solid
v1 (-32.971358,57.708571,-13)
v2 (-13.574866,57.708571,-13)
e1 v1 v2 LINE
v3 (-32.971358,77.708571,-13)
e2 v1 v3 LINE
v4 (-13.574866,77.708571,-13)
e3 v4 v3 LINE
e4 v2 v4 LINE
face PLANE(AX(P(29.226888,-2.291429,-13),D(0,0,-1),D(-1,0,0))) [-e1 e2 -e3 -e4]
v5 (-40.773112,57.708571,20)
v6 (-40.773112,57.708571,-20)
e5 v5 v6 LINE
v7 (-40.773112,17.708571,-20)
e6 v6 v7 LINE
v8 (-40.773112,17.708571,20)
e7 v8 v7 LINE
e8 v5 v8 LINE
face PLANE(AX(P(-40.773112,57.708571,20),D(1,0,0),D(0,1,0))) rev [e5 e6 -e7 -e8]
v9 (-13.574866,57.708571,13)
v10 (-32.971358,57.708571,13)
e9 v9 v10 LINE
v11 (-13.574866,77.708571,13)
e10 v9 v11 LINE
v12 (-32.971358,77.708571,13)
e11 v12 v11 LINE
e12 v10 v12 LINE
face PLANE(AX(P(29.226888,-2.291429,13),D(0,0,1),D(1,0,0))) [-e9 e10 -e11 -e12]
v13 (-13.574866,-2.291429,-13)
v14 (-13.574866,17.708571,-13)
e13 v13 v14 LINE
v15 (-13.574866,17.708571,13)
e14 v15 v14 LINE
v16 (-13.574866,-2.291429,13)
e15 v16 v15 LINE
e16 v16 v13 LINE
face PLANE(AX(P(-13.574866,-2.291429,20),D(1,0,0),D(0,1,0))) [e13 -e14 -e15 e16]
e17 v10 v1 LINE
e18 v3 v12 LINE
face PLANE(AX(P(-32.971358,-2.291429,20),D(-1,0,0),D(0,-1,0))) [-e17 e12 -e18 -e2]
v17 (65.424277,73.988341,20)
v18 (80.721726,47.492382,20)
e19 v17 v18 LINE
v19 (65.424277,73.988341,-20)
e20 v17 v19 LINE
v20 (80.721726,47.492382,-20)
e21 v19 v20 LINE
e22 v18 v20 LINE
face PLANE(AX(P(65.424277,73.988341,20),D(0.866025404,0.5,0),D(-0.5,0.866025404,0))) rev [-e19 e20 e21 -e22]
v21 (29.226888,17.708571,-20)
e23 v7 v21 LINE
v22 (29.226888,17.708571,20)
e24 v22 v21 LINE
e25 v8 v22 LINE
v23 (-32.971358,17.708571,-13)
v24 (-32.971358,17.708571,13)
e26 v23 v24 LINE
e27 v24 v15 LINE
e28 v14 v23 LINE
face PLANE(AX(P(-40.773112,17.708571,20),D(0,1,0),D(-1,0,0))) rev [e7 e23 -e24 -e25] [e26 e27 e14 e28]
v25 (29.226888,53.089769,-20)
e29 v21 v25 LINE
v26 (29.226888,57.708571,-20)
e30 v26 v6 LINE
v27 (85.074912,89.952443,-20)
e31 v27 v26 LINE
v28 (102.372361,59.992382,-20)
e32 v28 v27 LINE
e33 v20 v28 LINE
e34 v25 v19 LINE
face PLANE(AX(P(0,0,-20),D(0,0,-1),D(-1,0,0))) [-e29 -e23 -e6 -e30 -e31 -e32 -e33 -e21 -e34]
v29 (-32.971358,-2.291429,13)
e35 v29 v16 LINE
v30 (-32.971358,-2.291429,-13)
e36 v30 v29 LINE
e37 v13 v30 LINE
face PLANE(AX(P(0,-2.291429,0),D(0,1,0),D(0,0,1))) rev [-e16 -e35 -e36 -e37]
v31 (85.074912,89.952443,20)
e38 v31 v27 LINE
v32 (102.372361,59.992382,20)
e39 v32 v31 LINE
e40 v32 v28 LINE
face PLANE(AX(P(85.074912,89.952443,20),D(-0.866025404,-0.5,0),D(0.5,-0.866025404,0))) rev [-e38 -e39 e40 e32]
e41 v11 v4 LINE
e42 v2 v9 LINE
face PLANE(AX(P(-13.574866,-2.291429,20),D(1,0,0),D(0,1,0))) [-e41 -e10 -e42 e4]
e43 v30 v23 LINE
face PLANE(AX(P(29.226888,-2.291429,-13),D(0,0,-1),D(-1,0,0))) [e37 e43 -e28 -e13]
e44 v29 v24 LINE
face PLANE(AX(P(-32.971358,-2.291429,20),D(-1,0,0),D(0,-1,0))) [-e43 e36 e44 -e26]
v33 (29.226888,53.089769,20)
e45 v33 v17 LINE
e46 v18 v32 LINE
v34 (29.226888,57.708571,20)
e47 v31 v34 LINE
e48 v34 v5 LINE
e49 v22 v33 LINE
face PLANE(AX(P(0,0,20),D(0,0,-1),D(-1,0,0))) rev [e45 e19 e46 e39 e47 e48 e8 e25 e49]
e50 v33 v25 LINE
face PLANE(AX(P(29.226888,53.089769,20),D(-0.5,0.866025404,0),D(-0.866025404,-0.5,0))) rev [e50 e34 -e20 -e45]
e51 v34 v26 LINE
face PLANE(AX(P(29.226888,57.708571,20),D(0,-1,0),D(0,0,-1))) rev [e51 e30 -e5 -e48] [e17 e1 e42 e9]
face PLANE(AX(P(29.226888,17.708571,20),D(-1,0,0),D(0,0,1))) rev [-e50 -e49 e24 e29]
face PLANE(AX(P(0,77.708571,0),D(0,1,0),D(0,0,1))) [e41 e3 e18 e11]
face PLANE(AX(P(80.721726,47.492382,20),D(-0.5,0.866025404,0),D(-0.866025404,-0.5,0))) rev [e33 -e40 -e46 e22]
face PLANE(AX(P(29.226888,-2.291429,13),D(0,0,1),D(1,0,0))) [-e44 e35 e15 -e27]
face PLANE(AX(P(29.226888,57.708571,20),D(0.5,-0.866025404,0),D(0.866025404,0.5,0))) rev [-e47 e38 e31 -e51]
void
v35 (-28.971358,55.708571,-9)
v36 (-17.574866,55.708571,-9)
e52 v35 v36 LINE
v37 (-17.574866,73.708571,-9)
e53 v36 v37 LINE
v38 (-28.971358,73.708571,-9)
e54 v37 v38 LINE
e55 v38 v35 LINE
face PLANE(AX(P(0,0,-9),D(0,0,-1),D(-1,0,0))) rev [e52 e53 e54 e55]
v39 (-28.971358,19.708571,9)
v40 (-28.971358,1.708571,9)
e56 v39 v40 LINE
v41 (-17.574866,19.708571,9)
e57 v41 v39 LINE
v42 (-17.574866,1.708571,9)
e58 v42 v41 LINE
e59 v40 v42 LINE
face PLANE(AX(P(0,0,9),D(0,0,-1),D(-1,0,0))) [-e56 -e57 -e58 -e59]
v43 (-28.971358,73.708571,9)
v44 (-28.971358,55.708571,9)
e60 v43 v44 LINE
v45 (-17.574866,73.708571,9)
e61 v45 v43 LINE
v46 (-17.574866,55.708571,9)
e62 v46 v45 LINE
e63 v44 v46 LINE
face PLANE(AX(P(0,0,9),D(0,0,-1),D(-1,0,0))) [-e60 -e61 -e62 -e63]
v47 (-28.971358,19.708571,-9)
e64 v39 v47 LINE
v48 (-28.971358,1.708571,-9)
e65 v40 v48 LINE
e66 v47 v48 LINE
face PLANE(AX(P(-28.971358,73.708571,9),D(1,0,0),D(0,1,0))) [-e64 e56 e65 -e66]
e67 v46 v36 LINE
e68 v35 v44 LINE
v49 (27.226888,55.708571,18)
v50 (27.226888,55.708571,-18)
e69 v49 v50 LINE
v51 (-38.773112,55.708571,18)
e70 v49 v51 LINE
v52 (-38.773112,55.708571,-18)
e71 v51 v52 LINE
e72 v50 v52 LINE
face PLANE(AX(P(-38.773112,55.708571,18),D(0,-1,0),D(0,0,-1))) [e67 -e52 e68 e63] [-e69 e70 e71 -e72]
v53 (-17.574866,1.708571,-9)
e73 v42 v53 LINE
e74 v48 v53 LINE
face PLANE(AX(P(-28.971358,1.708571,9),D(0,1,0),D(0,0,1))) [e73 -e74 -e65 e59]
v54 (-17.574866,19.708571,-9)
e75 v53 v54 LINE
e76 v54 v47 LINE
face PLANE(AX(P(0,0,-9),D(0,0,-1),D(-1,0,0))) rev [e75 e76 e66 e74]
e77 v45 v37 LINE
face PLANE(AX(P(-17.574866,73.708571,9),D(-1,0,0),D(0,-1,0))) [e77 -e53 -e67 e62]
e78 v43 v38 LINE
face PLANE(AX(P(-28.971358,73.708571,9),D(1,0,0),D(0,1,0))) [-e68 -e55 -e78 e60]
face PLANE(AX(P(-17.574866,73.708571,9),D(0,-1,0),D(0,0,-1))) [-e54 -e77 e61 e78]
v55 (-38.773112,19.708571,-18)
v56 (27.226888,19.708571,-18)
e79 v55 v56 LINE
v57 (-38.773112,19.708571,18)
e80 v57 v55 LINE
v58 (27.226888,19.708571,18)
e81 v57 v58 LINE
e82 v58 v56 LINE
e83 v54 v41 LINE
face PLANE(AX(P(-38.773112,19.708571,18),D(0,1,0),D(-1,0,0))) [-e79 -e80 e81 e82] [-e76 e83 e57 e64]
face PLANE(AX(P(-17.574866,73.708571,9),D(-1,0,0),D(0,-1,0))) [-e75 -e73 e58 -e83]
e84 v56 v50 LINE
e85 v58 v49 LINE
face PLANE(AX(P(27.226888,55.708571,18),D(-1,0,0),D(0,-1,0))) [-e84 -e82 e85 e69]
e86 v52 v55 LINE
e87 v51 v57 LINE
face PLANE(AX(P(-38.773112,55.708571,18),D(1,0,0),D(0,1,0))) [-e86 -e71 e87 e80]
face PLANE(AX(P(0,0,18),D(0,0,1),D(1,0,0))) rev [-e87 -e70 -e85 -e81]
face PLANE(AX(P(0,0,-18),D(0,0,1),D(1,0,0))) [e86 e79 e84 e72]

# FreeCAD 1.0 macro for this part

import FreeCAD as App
import Part
import Sketcher
Q = App.Units.Quantity

doc = App.newDocument("Part")
body = doc.addObject("PartDesign::Body", "Body")

sketch1 = body.newObject("Sketcher::SketchObject", "Sketch")
sketch1.AttachmentSupport = (doc.getObject("XY_Plane"), [""])
sketch1.MapMode = "FlatFace"
sketch1.addGeometry(Part.LineSegment(App.Vector(65, 74, 0), App.Vector(81, 47, 0)), False)
sketch1.addGeometry(Part.LineSegment(App.Vector(81, 47, 0), App.Vector(102, 60, 0)), False)
sketch1.addGeometry(Part.LineSegment(App.Vector(102, 60, 0), App.Vector(85, 90, 0)), False)
sketch1.addGeometry(Part.LineSegment(App.Vector(85, 90, 0), App.Vector(29, 58, 0)), False)
sketch1.addGeometry(Part.LineSegment(App.Vector(29, 58, 0), App.Vector(-41, 58, 0)), False)
sketch1.addGeometry(Part.LineSegment(App.Vector(-41, 58, 0), App.Vector(-41, 18, 0)), False)
sketch1.addGeometry(Part.LineSegment(App.Vector(-41, 18, 0), App.Vector(29, 18, 0)), False)
sketch1.addGeometry(Part.LineSegment(App.Vector(29, 18, 0), App.Vector(29, 53, 0)), False)
sketch1.addGeometry(Part.LineSegment(App.Vector(29, 53, 0), App.Vector(65, 74, 0)), False)
sketch1.addConstraint(Sketcher.Constraint("Coincident", 0, 2, 1, 1))
sketch1.addConstraint(Sketcher.Constraint("Coincident", 1, 2, 2, 1))
sketch1.addConstraint(Sketcher.Constraint("Coincident", 2, 2, 3, 1))
sketch1.addConstraint(Sketcher.Constraint("Coincident", 3, 2, 4, 1))
sketch1.addConstraint(Sketcher.Constraint("Coincident", 4, 2, 5, 1))
sketch1.addConstraint(Sketcher.Constraint("Coincident", 5, 2, 6, 1))
sketch1.addConstraint(Sketcher.Constraint("Coincident", 6, 2, 7, 1))
sketch1.addConstraint(Sketcher.Constraint("Coincident", 7, 2, 8, 1))
sketch1.addConstraint(Sketcher.Constraint("Coincident", 8, 2, 0, 1))
sketch1.addConstraint(Sketcher.Constraint("Horizontal", 4))
sketch1.addConstraint(Sketcher.Constraint("Vertical", 5))
sketch1.addConstraint(Sketcher.Constraint("Horizontal", 6))
sketch1.addConstraint(Sketcher.Constraint("Vertical", 7))
sketch1.addConstraint(Sketcher.Constraint("Perpendicular", 0, 1))
sketch1.addConstraint(Sketcher.Constraint("Perpendicular", 1, 2))
sketch1.addConstraint(Sketcher.Constraint("Perpendicular", 2, 3))
sketch1.addConstraint(Sketcher.Constraint("Parallel", 3, 8))
sketch1.addConstraint(Sketcher.Constraint("Vertical", 3, 2, 6, 2))
sketch1.addConstraint(Sketcher.Constraint("DistanceX", 4, 2, 4, 1, 70.0))
sketch1.addConstraint(Sketcher.Constraint("DistanceY", 5, 2, 5, 1, 40.0))
sketch1.addConstraint(Sketcher.Constraint("Angle", 0, Q("-60 deg")))
sketch1.addConstraint(Sketcher.Constraint("Distance", 1, 25.0))
sketch1.addConstraint(Sketcher.Constraint("Distance", 0, 30.594899))
sketch1.addConstraint(Sketcher.Constraint("Distance", 2, 34.594899))
sketch1.addConstraint(Sketcher.Constraint("DistanceY", -1, 1, 0, 2, 47.492382))
sketch1.addConstraint(Sketcher.Constraint("DistanceX", -1, 1, 1, 2, 102.372361))
sketch1.addConstraint(Sketcher.Constraint("DistanceY", -1, 1, 3, 2, 57.708571))
pad1 = body.newObject("PartDesign::Pad", "Pad")
pad1.Profile = sketch1
pad1.Length = 40
pad1.Midplane = True

sketch2 = body.newObject("Sketcher::SketchObject", "Sketch001")
sketch2.AttachmentSupport = (doc.getObject("XZ_Plane"), [""])
sketch2.MapMode = "FlatFace"
sketch2.AttachmentOffset = App.Placement(App.Vector(0, 0, -57.708571), App.Rotation())
sketch2.addGeometry(Part.LineSegment(App.Vector(-33, -13, 0), App.Vector(-33, 13, 0)), False)
sketch2.addGeometry(Part.LineSegment(App.Vector(-33, 13, 0), App.Vector(-14, 13, 0)), False)
sketch2.addGeometry(Part.LineSegment(App.Vector(-14, 13, 0), App.Vector(-14, -13, 0)), False)
sketch2.addGeometry(Part.LineSegment(App.Vector(-14, -13, 0), App.Vector(-33, -13, 0)), False)
sketch2.addConstraint(Sketcher.Constraint("Coincident", 0, 2, 1, 1))
sketch2.addConstraint(Sketcher.Constraint("Coincident", 1, 2, 2, 1))
sketch2.addConstraint(Sketcher.Constraint("Coincident", 2, 2, 3, 1))
sketch2.addConstraint(Sketcher.Constraint("Coincident", 3, 2, 0, 1))
sketch2.addConstraint(Sketcher.Constraint("Vertical", 0))
sketch2.addConstraint(Sketcher.Constraint("Horizontal", 1))
sketch2.addConstraint(Sketcher.Constraint("Vertical", 2))
sketch2.addConstraint(Sketcher.Constraint("Horizontal", 3))
sketch2.addConstraint(Sketcher.Constraint("DistanceY", 0, 1, 0, 2, 26.0))
sketch2.addConstraint(Sketcher.Constraint("DistanceY", -1, 1, 0, 2, 13.0))
sketch2.addConstraint(Sketcher.Constraint("DistanceX", 1, 1, 1, 2, 19.396493))
sketch2.addConstraint(Sketcher.Constraint("DistanceX", 0, 2, -1, 1, 32.971358))
pad2 = body.newObject("PartDesign::Pad", "Pad001")
pad2.Profile = sketch2
pad2.Type = "TwoLengths"
pad2.Length = 20
pad2.Length2 = 60
pad2.Reversed = True

sketch3 = body.newObject("Sketcher::SketchObject", "Sketch002")
sketch3.AttachmentSupport = (doc.getObject("XY_Plane"), [""])
sketch3.MapMode = "FlatFace"
sketch3.addGeometry(Part.LineSegment(App.Vector(-39, 56, 0), App.Vector(-39, 20, 0)), False)
sketch3.addGeometry(Part.LineSegment(App.Vector(-39, 20, 0), App.Vector(27, 20, 0)), False)
sketch3.addGeometry(Part.LineSegment(App.Vector(27, 20, 0), App.Vector(27, 56, 0)), False)
sketch3.addGeometry(Part.LineSegment(App.Vector(27, 56, 0), App.Vector(-39, 56, 0)), False)
sketch3.addConstraint(Sketcher.Constraint("Coincident", 0, 2, 1, 1))
sketch3.addConstraint(Sketcher.Constraint("Coincident", 1, 2, 2, 1))
sketch3.addConstraint(Sketcher.Constraint("Coincident", 2, 2, 3, 1))
sketch3.addConstraint(Sketcher.Constraint("Coincident", 3, 2, 0, 1))
sketch3.addConstraint(Sketcher.Constraint("Vertical", 0))
sketch3.addConstraint(Sketcher.Constraint("Horizontal", 1))
sketch3.addConstraint(Sketcher.Constraint("Vertical", 2))
sketch3.addConstraint(Sketcher.Constraint("Horizontal", 3))
sketch3.addConstraint(Sketcher.Constraint("DistanceX", 1, 1, 1, 2, 66.0))
sketch3.addConstraint(Sketcher.Constraint("DistanceY", 0, 2, 0, 1, 36.0))
sketch3.addConstraint(Sketcher.Constraint("DistanceY", -1, 1, 0, 2, 19.708571))
sketch3.addConstraint(Sketcher.Constraint("DistanceX", 0, 2, -1, 1, 38.773112))
pocket1 = body.newObject("PartDesign::Pocket", "Pocket")
pocket1.Profile = sketch3
pocket1.Type = "TwoLengths"
pocket1.Length = 18
pocket1.Length2 = 18
pocket1.Reversed = True

sketch4 = body.newObject("Sketcher::SketchObject", "Sketch003")
sketch4.AttachmentSupport = (doc.getObject("XY_Plane"), [""])
sketch4.MapMode = "FlatFace"
sketch4.addGeometry(Part.LineSegment(App.Vector(-29, 74, 0), App.Vector(-29, 2, 0)), False)
sketch4.addGeometry(Part.LineSegment(App.Vector(-29, 2, 0), App.Vector(-18, 2, 0)), False)
sketch4.addGeometry(Part.LineSegment(App.Vector(-18, 2, 0), App.Vector(-18, 74, 0)), False)
sketch4.addGeometry(Part.LineSegment(App.Vector(-18, 74, 0), App.Vector(-29, 74, 0)), False)
sketch4.addConstraint(Sketcher.Constraint("Coincident", 0, 2, 1, 1))
sketch4.addConstraint(Sketcher.Constraint("Coincident", 1, 2, 2, 1))
sketch4.addConstraint(Sketcher.Constraint("Coincident", 2, 2, 3, 1))
sketch4.addConstraint(Sketcher.Constraint("Coincident", 3, 2, 0, 1))
sketch4.addConstraint(Sketcher.Constraint("Vertical", 0))
sketch4.addConstraint(Sketcher.Constraint("Horizontal", 1))
sketch4.addConstraint(Sketcher.Constraint("Vertical", 2))
sketch4.addConstraint(Sketcher.Constraint("Horizontal", 3))
sketch4.addConstraint(Sketcher.Constraint("DistanceY", 0, 2, 0, 1, 72.0))
sketch4.addConstraint(Sketcher.Constraint("DistanceX", 1, 1, 1, 2, 11.396493))
sketch4.addConstraint(Sketcher.Constraint("DistanceX", 0, 2, -1, 1, 28.971358))
sketch4.addConstraint(Sketcher.Constraint("DistanceY", -1, 1, 0, 2, 1.708571))
pocket2 = body.newObject("PartDesign::Pocket", "Pocket001")
pocket2.Profile = sketch4
pocket2.Type = "TwoLengths"
pocket2.Length = 9
pocket2.Length2 = 9
pocket2.Reversed = True

doc.recompute()
